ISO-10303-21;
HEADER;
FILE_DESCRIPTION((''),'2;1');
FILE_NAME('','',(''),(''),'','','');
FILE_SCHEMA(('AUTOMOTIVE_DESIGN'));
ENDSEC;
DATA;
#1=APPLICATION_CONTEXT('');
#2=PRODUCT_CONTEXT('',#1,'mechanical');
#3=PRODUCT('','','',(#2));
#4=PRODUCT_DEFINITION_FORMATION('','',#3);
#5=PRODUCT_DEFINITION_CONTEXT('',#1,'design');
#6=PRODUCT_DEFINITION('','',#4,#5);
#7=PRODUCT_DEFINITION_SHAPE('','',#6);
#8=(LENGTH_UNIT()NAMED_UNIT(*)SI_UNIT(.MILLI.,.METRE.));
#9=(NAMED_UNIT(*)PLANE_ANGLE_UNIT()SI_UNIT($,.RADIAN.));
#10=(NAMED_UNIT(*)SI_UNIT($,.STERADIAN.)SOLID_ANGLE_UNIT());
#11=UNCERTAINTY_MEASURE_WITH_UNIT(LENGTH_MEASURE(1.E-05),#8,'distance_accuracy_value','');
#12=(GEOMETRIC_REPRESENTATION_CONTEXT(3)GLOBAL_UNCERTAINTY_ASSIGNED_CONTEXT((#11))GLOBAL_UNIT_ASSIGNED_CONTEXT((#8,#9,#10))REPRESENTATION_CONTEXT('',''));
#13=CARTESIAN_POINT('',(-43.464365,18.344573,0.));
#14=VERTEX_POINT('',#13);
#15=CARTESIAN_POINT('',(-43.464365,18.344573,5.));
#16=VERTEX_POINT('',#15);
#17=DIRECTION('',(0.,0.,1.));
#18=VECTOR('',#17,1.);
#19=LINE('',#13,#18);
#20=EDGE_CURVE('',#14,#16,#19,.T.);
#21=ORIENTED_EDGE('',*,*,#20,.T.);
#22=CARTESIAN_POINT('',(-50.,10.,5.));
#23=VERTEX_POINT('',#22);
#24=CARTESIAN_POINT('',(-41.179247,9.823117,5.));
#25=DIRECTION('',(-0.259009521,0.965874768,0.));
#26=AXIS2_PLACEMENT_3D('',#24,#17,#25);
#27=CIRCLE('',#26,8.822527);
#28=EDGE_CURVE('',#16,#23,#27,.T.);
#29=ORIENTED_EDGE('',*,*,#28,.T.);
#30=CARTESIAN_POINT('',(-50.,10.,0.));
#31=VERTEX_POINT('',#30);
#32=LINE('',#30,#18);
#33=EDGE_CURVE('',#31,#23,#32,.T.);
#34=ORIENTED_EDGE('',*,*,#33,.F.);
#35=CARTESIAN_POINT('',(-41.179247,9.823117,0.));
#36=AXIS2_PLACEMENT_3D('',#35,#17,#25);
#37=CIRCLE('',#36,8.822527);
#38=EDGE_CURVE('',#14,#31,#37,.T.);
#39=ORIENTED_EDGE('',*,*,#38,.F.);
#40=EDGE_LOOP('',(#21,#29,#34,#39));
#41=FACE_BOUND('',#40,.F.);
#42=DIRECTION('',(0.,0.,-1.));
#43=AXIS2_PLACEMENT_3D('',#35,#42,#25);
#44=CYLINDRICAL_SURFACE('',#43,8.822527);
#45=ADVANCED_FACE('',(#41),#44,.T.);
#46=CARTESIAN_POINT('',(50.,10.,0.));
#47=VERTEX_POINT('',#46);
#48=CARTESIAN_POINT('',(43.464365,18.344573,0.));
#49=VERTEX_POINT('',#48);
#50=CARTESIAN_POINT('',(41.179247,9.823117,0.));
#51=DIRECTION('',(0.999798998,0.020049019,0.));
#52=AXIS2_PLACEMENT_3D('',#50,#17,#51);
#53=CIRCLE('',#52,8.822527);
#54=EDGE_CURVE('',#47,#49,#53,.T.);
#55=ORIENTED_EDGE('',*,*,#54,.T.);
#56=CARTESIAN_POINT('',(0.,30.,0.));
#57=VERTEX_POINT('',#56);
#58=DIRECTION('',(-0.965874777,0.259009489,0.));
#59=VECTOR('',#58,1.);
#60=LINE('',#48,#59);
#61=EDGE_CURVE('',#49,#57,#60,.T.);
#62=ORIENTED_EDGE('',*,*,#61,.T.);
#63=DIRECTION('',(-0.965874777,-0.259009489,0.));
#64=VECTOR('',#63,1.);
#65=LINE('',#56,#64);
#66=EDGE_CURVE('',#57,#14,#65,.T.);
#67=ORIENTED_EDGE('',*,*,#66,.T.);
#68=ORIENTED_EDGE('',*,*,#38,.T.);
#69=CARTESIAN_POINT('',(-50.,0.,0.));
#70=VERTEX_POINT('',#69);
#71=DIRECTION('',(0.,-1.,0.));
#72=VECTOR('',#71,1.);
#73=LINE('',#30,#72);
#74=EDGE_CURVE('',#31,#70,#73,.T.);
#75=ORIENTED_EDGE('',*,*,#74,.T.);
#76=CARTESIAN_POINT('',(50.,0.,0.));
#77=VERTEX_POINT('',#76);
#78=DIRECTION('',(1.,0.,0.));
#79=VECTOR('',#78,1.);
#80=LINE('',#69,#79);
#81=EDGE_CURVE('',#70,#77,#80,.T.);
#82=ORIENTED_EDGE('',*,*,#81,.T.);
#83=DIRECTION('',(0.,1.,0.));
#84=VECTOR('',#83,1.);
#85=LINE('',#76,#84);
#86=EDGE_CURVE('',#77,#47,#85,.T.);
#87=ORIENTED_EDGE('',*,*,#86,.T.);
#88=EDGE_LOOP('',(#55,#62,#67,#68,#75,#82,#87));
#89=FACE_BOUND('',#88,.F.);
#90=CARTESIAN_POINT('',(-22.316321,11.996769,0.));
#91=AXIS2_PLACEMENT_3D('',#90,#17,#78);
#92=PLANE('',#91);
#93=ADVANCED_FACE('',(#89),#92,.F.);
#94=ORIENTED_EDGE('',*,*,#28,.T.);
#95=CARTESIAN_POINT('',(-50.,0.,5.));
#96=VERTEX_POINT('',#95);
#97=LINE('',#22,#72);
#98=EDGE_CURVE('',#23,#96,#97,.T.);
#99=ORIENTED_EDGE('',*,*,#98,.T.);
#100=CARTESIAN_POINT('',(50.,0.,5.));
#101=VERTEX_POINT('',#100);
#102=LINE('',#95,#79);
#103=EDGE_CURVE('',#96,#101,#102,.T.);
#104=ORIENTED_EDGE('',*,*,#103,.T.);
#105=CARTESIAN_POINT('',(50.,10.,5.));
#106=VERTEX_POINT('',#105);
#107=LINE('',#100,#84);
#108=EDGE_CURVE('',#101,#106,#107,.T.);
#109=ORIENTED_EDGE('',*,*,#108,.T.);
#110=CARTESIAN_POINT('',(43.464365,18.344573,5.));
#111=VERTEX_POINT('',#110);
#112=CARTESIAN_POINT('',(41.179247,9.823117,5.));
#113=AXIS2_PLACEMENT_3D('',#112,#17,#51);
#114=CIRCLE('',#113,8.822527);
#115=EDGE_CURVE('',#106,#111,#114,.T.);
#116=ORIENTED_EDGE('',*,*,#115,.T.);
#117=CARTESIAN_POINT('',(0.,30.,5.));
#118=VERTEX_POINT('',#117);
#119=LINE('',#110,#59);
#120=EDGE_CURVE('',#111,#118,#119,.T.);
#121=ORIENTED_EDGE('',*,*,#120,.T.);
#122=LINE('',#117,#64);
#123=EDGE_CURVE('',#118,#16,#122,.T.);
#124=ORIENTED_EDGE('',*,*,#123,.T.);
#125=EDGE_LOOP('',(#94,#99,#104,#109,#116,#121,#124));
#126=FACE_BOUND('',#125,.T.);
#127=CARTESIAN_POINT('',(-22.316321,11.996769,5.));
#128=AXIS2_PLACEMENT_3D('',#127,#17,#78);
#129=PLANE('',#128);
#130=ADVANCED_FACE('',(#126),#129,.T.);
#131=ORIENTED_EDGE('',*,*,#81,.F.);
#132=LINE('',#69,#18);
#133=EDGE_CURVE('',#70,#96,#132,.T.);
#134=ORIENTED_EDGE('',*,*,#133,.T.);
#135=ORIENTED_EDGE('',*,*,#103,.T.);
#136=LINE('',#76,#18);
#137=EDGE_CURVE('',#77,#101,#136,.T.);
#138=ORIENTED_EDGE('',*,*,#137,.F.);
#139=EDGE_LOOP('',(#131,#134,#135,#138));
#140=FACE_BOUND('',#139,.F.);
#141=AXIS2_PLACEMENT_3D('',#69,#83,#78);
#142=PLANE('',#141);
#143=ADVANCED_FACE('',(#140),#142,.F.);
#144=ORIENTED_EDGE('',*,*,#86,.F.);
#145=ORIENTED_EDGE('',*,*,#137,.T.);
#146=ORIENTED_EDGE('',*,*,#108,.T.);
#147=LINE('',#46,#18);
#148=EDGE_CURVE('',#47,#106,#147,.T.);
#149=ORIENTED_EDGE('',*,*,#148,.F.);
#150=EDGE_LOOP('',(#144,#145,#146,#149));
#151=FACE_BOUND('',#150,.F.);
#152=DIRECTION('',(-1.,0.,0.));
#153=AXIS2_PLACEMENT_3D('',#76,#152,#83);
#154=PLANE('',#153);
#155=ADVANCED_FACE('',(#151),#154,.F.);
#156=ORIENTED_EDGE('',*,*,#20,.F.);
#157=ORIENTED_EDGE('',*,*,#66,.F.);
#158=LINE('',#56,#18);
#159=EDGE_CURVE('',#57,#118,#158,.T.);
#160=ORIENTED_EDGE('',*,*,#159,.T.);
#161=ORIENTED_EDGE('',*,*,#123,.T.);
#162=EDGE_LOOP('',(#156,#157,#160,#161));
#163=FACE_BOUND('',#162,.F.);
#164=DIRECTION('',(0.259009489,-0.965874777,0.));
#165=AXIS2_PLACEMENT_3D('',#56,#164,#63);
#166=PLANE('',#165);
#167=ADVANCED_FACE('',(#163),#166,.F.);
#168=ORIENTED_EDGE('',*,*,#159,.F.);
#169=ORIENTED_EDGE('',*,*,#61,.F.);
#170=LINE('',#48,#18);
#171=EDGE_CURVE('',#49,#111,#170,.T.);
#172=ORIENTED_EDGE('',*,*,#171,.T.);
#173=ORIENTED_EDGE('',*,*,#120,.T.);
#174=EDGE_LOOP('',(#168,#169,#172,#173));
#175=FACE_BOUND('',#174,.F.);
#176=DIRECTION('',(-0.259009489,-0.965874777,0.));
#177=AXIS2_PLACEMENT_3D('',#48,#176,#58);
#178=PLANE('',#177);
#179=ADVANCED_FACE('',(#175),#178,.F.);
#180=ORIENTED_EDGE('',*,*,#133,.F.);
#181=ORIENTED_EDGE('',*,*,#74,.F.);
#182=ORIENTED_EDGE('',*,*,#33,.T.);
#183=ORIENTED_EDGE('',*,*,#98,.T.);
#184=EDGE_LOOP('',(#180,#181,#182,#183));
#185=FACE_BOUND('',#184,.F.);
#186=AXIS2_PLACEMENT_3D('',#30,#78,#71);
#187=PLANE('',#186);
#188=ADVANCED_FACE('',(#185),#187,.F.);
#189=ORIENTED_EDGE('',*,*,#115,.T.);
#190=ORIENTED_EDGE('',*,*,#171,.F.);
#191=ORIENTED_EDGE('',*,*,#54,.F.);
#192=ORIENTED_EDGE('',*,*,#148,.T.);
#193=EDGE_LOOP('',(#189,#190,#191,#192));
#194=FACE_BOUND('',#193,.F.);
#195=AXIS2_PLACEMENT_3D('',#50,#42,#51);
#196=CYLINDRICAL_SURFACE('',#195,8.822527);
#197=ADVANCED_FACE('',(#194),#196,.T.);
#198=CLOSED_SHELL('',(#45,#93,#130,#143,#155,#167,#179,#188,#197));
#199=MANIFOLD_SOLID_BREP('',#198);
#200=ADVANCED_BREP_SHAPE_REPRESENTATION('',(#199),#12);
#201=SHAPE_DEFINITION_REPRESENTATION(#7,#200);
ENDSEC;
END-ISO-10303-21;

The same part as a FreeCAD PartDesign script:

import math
import FreeCAD as App
import Part
import Sketcher
from FreeCAD import Vector
Q = App.Units.Quantity

doc = App.newDocument("Part")
params = doc.addObject("Spreadsheet::Sheet", "Params")
for row, (alias, value) in enumerate([
    ("sketch1_width", "100 mm"),
    ("sketch1_height", "10 mm"),
    ("sketch1_length", "45 mm"),
    ("pad1_length", "5 mm"),
], start=1):
    params.set(f"A{row}", alias)
    params.set(f"B{row}", "=" + value)
    params.setAlias(f"B{row}", alias)

body = doc.addObject("PartDesign::Body", "Body")

sketch1 = body.newObject("Sketcher::SketchObject", "Sketch")
sketch1.AttachmentSupport = (doc.getObject("XY_Plane"), [""])
sketch1.MapMode = "FlatFace"
sketch1.addGeometry(Part.LineSegment(Vector(-50, 0, 0), Vector(50, 0, 0)), False)
sketch1.addGeometry(Part.LineSegment(Vector(50, 0, 0), Vector(50, 10, 0)), False)
sketch1.addGeometry(Part.ArcOfCircle(Part.Circle(Vector(41, 10, 0), Vector(0, 0, 1), 9), math.radians(1), math.radians(75)), False)
sketch1.addGeometry(Part.LineSegment(Vector(43, 18, 0), Vector(0, 30, 0)), False)
sketch1.addGeometry(Part.LineSegment(Vector(0, 30, 0), Vector(-43, 18, 0)), False)
sketch1.addGeometry(Part.ArcOfCircle(Part.Circle(Vector(-41, 10, 0), Vector(0, 0, 1), 9), math.radians(105), math.radians(179)), False)
sketch1.addGeometry(Part.LineSegment(Vector(-50, 10, 0), Vector(-50, 0, 0)), False)
sketch1.addConstraint(Sketcher.Constraint("Coincident", 0, 2, 1, 1))
sketch1.addConstraint(Sketcher.Constraint("Coincident", 1, 2, 2, 1))
sketch1.addConstraint(Sketcher.Constraint("Tangent", 2, 2, 3, 1))
sketch1.addConstraint(Sketcher.Constraint("Coincident", 3, 2, 4, 1))
sketch1.addConstraint(Sketcher.Constraint("Tangent", 4, 2, 5, 1))
sketch1.addConstraint(Sketcher.Constraint("Coincident", 5, 2, 6, 1))
sketch1.addConstraint(Sketcher.Constraint("Coincident", 6, 2, 0, 1))
sketch1.addConstraint(Sketcher.Constraint("Horizontal", 0))
sketch1.addConstraint(Sketcher.Constraint("Vertical", 1))
sketch1.addConstraint(Sketcher.Constraint("Vertical", 6))
sketch1.addConstraint(Sketcher.Constraint("Equal", 2, 5))
sketch1.addConstraint(Sketcher.Constraint("Symmetric", 0, 2, 6, 2, -1, 1))
sketch1.addConstraint(Sketcher.Constraint("Symmetric", 2, 3, 5, 3, -2))
sketch1.addConstraint(Sketcher.Constraint("PointOnObject", 3, 2, -2))
sketch1.addConstraint(Sketcher.Constraint("DistanceX", 0, 1, 0, 2, Q("100 mm")))
sketch1.addConstraint(Sketcher.Constraint("DistanceY", 1, 1, 1, 2, Q("10 mm")))
sketch1.addConstraint(Sketcher.Constraint("Distance", 3, Q("45 mm")))
sketch1.addConstraint(Sketcher.Constraint("DistanceY", -1, 1, 3, 2, Q("30 mm")))
sketch1.addConstraint(Sketcher.Constraint("Radius", 2, Q("8.822527 mm")))
sketch1.setExpression("Constraints[14]", "Params.sketch1_width")
sketch1.setExpression("Constraints[15]", "Params.sketch1_height")
sketch1.setExpression("Constraints[16]", "Params.sketch1_length")
pad1 = body.newObject("PartDesign::Pad", "Pad")
pad1.Profile = sketch1
pad1.setExpression("Length", "Params.pad1_length")

doc.recompute()
